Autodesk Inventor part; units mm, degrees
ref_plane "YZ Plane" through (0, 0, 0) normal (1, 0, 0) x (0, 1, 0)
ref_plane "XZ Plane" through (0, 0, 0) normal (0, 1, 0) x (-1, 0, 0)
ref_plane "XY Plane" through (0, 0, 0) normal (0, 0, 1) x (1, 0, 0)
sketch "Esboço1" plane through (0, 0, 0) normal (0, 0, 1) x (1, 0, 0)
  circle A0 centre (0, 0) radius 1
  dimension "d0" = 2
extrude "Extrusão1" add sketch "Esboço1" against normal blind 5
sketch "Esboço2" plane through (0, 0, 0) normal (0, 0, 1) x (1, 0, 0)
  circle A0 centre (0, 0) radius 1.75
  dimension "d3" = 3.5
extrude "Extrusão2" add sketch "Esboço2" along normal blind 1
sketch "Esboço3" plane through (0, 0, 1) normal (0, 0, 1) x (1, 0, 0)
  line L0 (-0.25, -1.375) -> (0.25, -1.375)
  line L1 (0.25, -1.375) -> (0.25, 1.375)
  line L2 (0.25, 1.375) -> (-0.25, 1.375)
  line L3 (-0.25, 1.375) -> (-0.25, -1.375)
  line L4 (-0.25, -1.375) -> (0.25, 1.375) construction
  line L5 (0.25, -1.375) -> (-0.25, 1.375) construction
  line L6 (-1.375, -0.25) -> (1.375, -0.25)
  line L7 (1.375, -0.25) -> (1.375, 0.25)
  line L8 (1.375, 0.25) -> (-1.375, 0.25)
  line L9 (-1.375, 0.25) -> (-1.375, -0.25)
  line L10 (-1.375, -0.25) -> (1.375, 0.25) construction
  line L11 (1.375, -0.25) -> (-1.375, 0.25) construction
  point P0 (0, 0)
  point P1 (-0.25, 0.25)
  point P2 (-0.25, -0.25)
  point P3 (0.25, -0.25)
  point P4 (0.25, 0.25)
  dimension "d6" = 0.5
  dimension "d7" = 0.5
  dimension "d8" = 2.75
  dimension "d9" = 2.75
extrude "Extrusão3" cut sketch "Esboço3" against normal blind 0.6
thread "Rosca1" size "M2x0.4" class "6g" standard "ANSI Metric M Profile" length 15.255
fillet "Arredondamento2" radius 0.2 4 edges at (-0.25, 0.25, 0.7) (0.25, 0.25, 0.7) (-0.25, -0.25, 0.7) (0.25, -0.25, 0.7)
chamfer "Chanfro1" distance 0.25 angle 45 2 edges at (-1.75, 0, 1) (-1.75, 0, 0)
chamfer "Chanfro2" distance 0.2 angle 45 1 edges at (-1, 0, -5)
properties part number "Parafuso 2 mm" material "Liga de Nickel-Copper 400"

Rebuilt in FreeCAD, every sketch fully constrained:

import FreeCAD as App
import Part
import Sketcher
Q = App.Units.Quantity


def edges_at(feature, points):
    """Names of the edges that pass closest to the given points."""
    edges = feature.Shape.Edges
    near = lambda p: min(range(len(edges)), key=lambda i: edges[i].distToShape(Part.Vertex(*p))[0])
    return sorted({f"Edge{near(p) + 1}" for p in points})


def add_polygon(sketch, points):
    """Adds a closed chain of lines whose ends are joined by coincident constraints."""
    first, n = sketch.GeometryCount, len(points)
    for a, b in zip(points, points[1:] + points[:1]):
        sketch.addGeometry(Part.LineSegment(App.Vector(*a, 0), App.Vector(*b, 0)), False)
    for i in range(n):
        sketch.addConstraint(Sketcher.Constraint("Coincident", first + i, 2, first + (i + 1) % n, 1))

doc = App.newDocument("Part")
body = doc.addObject("PartDesign::Body", "Body")

# Sketch on XY plane
sketch1 = body.newObject("Sketcher::SketchObject", "Sketch")
sketch1.AttachmentSupport = (doc.getObject("XY_Plane"), [""])
sketch1.MapMode = "FlatFace"
sketch1.addGeometry(Part.Circle(App.Vector(0, 0, 0), App.Vector(0, 0, 1), 1), False)
sketch1.addConstraint([
    Sketcher.Constraint("Coincident", 0, 3, -1, 1),
    Sketcher.Constraint("Diameter", 0, Q("2 mm")),
])
pad1 = body.newObject("PartDesign::Pad", "Pad")
pad1.Profile = sketch1
pad1.Length = 5
pad1.Reversed = True

# Sketch on XY plane
sketch2 = body.newObject("Sketcher::SketchObject", "Sketch001")
sketch2.AttachmentSupport = (doc.getObject("XY_Plane"), [""])
sketch2.MapMode = "FlatFace"
sketch2.addGeometry(Part.Circle(App.Vector(0, 0, 0), App.Vector(0, 0, 1), 1.8), False)
sketch2.addConstraint([
    Sketcher.Constraint("Coincident", 0, 3, -1, 1),
    Sketcher.Constraint("Diameter", 0, Q("3.5 mm")),
])
pad2 = body.newObject("PartDesign::Pad", "Pad001")
pad2.Profile = sketch2
pad2.Length = 1

# Sketch on XY plane
sketch3 = body.newObject("Sketcher::SketchObject", "Sketch002")
sketch3.AttachmentSupport = (doc.getObject("XY_Plane"), [""])
sketch3.MapMode = "FlatFace"
sketch3.AttachmentOffset = App.Placement(App.Vector(0, 0, 1), App.Rotation())
add_polygon(sketch3, [(-0.2, -0.2), (-0.2, -1.4), (0.2, -1.4), (0.2, -0.2), (1.4, -0.2), (1.4, 0.2), (0.2, 0.2), (0.2, 1.4), (-0.2, 1.4), (-0.2, 0.2), (-1.4, 0.2), (-1.4, -0.2)])  # lines 0-11
sketch3.addConstraint([
    Sketcher.Constraint("Vertical", 0),
    Sketcher.Constraint("Horizontal", 1),
    Sketcher.Constraint("Vertical", 2),
    Sketcher.Constraint("Horizontal", 3),
    Sketcher.Constraint("Vertical", 4),
    Sketcher.Constraint("Horizontal", 5),
    Sketcher.Constraint("Vertical", 6),
    Sketcher.Constraint("Horizontal", 7),
    Sketcher.Constraint("Vertical", 8),
    Sketcher.Constraint("Horizontal", 9),
    Sketcher.Constraint("Vertical", 10),
    Sketcher.Constraint("Horizontal", 11),
    Sketcher.Constraint("Symmetric", 0, 2, 6, 2, -1, 1),
    Sketcher.Constraint("Symmetric", 2, 2, 8, 2, -1, 1),
    Sketcher.Constraint("Symmetric", 4, 2, 10, 2, -1, 1),
    Sketcher.Constraint("Symmetric", 5, 2, 8, 2, -2),
    Sketcher.Constraint("Equal", 11, 0),
    Sketcher.Constraint("Equal", 7, 4),
    Sketcher.Constraint("DistanceX", 1, 1, 1, 2, Q("0.5 mm")),
    Sketcher.Constraint("DistanceY", 1, 2, 6, 2, Q("2.75 mm")),
])
pocket1 = body.newObject("PartDesign::Pocket", "Pocket")
pocket1.Profile = sketch3
pocket1.Length = 0.6
doc.recompute()

fillet = body.newObject("PartDesign::Fillet", "Fillet")
fillet.Base = (pocket1, edges_at(pocket1, [
    (-0.25, 0.25, 0.7),
    (0.25, 0.25, 0.7),
    (-0.25, -0.25, 0.7),
    (0.25, -0.25, 0.7),
]))
fillet.Radius = 0.2
doc.recompute()

chamfer = body.newObject("PartDesign::Chamfer", "Chamfer")
chamfer.Base = (fillet, edges_at(fillet, [(-1.75, 0, 1), (-1.75, 0, 0)]))
chamfer.Size = 0.25
doc.recompute()

chamfer2 = body.newObject("PartDesign::Chamfer", "Chamfer001")
chamfer2.Base = (chamfer, edges_at(chamfer, [(-1, 0, -5)]))
chamfer2.Size = 0.2

doc.recompute()
